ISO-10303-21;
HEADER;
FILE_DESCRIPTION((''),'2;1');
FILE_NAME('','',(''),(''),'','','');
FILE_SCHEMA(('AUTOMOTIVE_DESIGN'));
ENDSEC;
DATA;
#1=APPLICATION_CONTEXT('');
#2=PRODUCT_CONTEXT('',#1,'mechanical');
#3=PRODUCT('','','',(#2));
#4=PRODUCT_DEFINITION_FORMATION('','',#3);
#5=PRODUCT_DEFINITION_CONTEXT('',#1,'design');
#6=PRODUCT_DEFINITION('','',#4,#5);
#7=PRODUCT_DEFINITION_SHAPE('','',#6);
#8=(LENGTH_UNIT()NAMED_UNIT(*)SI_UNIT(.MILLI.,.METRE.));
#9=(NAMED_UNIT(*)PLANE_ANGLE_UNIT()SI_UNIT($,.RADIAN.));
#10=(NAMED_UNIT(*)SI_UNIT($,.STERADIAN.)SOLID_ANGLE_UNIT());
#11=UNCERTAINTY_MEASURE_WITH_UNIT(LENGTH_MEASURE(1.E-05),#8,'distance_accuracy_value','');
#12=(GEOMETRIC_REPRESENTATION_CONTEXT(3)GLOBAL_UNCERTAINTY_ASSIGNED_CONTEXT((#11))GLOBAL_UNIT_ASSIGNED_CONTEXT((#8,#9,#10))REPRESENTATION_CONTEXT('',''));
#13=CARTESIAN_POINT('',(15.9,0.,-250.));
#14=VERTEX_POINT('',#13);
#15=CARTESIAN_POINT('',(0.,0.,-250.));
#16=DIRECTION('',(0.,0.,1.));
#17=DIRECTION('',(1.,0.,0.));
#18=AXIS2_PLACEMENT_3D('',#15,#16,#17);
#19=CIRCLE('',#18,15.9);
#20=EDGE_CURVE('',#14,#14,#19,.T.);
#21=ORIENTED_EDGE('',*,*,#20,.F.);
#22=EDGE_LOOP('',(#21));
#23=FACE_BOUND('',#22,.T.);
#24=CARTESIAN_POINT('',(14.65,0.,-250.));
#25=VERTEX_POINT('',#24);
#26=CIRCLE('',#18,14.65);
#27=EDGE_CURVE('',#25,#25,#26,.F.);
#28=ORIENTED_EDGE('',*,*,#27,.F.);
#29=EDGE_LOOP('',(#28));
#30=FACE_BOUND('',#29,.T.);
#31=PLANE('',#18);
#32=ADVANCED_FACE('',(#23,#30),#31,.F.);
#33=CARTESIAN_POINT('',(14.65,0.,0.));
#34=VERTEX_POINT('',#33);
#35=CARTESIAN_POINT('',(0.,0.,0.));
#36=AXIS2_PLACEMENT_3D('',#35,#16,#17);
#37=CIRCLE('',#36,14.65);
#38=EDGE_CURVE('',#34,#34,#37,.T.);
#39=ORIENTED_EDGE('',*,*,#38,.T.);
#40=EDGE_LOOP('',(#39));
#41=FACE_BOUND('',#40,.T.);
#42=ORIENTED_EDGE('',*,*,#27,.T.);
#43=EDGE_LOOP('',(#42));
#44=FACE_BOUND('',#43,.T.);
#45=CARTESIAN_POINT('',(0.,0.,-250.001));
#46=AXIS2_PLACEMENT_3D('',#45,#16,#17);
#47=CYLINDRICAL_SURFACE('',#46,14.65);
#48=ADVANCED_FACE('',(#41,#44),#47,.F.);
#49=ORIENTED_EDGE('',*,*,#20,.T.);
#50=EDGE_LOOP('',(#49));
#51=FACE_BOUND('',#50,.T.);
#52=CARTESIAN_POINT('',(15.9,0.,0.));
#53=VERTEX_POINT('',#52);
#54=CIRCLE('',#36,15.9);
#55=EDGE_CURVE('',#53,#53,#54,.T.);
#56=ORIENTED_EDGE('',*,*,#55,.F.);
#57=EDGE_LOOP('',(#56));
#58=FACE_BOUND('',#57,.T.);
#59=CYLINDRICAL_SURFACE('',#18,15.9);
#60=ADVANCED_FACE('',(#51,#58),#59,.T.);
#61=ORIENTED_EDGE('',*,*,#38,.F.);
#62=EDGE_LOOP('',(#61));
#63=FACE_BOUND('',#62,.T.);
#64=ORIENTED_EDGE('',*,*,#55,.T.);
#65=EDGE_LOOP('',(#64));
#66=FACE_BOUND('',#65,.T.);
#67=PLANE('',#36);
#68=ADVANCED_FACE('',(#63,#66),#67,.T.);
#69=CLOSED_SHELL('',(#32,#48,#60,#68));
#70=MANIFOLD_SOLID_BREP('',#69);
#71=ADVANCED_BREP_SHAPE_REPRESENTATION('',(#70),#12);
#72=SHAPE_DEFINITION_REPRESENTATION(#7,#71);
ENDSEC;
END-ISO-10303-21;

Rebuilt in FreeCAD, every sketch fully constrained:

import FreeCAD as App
import Part
import Sketcher

doc = App.newDocument("Part")
body = doc.addObject("PartDesign::Body", "Body")

sketch1 = body.newObject("Sketcher::SketchObject", "Sketch")
sketch1.AttachmentSupport = (doc.getObject("XY_Plane"), [""])
sketch1.MapMode = "FlatFace"
sketch1.addGeometry(Part.Circle(App.Vector(0, 0, 0), App.Vector(0, 0, 1), 15.9), False)
sketch1.addConstraint([
    Sketcher.Constraint("Coincident", 0, 3, -1, 1),
    Sketcher.Constraint("Diameter", 0, 31.8),
])
pad1 = body.newObject("PartDesign::Pad", "Pad")
pad1.Profile = sketch1
pad1.Length = 250
pad1.Reversed = True

sketch2 = body.newObject("Sketcher::SketchObject", "Sketch001")
sketch2.AttachmentSupport = (doc.getObject("XY_Plane"), [""])
sketch2.MapMode = "FlatFace"
sketch2.addGeometry(Part.Circle(App.Vector(0, 0, 0), App.Vector(0, 0, 1), 14.65), False)
sketch2.addConstraint([
    Sketcher.Constraint("Coincident", 0, 3, -1, 1),
    Sketcher.Constraint("Diameter", 0, 29.3),
])
pocket1 = body.newObject("PartDesign::Pocket", "Pocket")
pocket1.Profile = sketch2
pocket1.Type = "UpToFirst"

doc.recompute()
